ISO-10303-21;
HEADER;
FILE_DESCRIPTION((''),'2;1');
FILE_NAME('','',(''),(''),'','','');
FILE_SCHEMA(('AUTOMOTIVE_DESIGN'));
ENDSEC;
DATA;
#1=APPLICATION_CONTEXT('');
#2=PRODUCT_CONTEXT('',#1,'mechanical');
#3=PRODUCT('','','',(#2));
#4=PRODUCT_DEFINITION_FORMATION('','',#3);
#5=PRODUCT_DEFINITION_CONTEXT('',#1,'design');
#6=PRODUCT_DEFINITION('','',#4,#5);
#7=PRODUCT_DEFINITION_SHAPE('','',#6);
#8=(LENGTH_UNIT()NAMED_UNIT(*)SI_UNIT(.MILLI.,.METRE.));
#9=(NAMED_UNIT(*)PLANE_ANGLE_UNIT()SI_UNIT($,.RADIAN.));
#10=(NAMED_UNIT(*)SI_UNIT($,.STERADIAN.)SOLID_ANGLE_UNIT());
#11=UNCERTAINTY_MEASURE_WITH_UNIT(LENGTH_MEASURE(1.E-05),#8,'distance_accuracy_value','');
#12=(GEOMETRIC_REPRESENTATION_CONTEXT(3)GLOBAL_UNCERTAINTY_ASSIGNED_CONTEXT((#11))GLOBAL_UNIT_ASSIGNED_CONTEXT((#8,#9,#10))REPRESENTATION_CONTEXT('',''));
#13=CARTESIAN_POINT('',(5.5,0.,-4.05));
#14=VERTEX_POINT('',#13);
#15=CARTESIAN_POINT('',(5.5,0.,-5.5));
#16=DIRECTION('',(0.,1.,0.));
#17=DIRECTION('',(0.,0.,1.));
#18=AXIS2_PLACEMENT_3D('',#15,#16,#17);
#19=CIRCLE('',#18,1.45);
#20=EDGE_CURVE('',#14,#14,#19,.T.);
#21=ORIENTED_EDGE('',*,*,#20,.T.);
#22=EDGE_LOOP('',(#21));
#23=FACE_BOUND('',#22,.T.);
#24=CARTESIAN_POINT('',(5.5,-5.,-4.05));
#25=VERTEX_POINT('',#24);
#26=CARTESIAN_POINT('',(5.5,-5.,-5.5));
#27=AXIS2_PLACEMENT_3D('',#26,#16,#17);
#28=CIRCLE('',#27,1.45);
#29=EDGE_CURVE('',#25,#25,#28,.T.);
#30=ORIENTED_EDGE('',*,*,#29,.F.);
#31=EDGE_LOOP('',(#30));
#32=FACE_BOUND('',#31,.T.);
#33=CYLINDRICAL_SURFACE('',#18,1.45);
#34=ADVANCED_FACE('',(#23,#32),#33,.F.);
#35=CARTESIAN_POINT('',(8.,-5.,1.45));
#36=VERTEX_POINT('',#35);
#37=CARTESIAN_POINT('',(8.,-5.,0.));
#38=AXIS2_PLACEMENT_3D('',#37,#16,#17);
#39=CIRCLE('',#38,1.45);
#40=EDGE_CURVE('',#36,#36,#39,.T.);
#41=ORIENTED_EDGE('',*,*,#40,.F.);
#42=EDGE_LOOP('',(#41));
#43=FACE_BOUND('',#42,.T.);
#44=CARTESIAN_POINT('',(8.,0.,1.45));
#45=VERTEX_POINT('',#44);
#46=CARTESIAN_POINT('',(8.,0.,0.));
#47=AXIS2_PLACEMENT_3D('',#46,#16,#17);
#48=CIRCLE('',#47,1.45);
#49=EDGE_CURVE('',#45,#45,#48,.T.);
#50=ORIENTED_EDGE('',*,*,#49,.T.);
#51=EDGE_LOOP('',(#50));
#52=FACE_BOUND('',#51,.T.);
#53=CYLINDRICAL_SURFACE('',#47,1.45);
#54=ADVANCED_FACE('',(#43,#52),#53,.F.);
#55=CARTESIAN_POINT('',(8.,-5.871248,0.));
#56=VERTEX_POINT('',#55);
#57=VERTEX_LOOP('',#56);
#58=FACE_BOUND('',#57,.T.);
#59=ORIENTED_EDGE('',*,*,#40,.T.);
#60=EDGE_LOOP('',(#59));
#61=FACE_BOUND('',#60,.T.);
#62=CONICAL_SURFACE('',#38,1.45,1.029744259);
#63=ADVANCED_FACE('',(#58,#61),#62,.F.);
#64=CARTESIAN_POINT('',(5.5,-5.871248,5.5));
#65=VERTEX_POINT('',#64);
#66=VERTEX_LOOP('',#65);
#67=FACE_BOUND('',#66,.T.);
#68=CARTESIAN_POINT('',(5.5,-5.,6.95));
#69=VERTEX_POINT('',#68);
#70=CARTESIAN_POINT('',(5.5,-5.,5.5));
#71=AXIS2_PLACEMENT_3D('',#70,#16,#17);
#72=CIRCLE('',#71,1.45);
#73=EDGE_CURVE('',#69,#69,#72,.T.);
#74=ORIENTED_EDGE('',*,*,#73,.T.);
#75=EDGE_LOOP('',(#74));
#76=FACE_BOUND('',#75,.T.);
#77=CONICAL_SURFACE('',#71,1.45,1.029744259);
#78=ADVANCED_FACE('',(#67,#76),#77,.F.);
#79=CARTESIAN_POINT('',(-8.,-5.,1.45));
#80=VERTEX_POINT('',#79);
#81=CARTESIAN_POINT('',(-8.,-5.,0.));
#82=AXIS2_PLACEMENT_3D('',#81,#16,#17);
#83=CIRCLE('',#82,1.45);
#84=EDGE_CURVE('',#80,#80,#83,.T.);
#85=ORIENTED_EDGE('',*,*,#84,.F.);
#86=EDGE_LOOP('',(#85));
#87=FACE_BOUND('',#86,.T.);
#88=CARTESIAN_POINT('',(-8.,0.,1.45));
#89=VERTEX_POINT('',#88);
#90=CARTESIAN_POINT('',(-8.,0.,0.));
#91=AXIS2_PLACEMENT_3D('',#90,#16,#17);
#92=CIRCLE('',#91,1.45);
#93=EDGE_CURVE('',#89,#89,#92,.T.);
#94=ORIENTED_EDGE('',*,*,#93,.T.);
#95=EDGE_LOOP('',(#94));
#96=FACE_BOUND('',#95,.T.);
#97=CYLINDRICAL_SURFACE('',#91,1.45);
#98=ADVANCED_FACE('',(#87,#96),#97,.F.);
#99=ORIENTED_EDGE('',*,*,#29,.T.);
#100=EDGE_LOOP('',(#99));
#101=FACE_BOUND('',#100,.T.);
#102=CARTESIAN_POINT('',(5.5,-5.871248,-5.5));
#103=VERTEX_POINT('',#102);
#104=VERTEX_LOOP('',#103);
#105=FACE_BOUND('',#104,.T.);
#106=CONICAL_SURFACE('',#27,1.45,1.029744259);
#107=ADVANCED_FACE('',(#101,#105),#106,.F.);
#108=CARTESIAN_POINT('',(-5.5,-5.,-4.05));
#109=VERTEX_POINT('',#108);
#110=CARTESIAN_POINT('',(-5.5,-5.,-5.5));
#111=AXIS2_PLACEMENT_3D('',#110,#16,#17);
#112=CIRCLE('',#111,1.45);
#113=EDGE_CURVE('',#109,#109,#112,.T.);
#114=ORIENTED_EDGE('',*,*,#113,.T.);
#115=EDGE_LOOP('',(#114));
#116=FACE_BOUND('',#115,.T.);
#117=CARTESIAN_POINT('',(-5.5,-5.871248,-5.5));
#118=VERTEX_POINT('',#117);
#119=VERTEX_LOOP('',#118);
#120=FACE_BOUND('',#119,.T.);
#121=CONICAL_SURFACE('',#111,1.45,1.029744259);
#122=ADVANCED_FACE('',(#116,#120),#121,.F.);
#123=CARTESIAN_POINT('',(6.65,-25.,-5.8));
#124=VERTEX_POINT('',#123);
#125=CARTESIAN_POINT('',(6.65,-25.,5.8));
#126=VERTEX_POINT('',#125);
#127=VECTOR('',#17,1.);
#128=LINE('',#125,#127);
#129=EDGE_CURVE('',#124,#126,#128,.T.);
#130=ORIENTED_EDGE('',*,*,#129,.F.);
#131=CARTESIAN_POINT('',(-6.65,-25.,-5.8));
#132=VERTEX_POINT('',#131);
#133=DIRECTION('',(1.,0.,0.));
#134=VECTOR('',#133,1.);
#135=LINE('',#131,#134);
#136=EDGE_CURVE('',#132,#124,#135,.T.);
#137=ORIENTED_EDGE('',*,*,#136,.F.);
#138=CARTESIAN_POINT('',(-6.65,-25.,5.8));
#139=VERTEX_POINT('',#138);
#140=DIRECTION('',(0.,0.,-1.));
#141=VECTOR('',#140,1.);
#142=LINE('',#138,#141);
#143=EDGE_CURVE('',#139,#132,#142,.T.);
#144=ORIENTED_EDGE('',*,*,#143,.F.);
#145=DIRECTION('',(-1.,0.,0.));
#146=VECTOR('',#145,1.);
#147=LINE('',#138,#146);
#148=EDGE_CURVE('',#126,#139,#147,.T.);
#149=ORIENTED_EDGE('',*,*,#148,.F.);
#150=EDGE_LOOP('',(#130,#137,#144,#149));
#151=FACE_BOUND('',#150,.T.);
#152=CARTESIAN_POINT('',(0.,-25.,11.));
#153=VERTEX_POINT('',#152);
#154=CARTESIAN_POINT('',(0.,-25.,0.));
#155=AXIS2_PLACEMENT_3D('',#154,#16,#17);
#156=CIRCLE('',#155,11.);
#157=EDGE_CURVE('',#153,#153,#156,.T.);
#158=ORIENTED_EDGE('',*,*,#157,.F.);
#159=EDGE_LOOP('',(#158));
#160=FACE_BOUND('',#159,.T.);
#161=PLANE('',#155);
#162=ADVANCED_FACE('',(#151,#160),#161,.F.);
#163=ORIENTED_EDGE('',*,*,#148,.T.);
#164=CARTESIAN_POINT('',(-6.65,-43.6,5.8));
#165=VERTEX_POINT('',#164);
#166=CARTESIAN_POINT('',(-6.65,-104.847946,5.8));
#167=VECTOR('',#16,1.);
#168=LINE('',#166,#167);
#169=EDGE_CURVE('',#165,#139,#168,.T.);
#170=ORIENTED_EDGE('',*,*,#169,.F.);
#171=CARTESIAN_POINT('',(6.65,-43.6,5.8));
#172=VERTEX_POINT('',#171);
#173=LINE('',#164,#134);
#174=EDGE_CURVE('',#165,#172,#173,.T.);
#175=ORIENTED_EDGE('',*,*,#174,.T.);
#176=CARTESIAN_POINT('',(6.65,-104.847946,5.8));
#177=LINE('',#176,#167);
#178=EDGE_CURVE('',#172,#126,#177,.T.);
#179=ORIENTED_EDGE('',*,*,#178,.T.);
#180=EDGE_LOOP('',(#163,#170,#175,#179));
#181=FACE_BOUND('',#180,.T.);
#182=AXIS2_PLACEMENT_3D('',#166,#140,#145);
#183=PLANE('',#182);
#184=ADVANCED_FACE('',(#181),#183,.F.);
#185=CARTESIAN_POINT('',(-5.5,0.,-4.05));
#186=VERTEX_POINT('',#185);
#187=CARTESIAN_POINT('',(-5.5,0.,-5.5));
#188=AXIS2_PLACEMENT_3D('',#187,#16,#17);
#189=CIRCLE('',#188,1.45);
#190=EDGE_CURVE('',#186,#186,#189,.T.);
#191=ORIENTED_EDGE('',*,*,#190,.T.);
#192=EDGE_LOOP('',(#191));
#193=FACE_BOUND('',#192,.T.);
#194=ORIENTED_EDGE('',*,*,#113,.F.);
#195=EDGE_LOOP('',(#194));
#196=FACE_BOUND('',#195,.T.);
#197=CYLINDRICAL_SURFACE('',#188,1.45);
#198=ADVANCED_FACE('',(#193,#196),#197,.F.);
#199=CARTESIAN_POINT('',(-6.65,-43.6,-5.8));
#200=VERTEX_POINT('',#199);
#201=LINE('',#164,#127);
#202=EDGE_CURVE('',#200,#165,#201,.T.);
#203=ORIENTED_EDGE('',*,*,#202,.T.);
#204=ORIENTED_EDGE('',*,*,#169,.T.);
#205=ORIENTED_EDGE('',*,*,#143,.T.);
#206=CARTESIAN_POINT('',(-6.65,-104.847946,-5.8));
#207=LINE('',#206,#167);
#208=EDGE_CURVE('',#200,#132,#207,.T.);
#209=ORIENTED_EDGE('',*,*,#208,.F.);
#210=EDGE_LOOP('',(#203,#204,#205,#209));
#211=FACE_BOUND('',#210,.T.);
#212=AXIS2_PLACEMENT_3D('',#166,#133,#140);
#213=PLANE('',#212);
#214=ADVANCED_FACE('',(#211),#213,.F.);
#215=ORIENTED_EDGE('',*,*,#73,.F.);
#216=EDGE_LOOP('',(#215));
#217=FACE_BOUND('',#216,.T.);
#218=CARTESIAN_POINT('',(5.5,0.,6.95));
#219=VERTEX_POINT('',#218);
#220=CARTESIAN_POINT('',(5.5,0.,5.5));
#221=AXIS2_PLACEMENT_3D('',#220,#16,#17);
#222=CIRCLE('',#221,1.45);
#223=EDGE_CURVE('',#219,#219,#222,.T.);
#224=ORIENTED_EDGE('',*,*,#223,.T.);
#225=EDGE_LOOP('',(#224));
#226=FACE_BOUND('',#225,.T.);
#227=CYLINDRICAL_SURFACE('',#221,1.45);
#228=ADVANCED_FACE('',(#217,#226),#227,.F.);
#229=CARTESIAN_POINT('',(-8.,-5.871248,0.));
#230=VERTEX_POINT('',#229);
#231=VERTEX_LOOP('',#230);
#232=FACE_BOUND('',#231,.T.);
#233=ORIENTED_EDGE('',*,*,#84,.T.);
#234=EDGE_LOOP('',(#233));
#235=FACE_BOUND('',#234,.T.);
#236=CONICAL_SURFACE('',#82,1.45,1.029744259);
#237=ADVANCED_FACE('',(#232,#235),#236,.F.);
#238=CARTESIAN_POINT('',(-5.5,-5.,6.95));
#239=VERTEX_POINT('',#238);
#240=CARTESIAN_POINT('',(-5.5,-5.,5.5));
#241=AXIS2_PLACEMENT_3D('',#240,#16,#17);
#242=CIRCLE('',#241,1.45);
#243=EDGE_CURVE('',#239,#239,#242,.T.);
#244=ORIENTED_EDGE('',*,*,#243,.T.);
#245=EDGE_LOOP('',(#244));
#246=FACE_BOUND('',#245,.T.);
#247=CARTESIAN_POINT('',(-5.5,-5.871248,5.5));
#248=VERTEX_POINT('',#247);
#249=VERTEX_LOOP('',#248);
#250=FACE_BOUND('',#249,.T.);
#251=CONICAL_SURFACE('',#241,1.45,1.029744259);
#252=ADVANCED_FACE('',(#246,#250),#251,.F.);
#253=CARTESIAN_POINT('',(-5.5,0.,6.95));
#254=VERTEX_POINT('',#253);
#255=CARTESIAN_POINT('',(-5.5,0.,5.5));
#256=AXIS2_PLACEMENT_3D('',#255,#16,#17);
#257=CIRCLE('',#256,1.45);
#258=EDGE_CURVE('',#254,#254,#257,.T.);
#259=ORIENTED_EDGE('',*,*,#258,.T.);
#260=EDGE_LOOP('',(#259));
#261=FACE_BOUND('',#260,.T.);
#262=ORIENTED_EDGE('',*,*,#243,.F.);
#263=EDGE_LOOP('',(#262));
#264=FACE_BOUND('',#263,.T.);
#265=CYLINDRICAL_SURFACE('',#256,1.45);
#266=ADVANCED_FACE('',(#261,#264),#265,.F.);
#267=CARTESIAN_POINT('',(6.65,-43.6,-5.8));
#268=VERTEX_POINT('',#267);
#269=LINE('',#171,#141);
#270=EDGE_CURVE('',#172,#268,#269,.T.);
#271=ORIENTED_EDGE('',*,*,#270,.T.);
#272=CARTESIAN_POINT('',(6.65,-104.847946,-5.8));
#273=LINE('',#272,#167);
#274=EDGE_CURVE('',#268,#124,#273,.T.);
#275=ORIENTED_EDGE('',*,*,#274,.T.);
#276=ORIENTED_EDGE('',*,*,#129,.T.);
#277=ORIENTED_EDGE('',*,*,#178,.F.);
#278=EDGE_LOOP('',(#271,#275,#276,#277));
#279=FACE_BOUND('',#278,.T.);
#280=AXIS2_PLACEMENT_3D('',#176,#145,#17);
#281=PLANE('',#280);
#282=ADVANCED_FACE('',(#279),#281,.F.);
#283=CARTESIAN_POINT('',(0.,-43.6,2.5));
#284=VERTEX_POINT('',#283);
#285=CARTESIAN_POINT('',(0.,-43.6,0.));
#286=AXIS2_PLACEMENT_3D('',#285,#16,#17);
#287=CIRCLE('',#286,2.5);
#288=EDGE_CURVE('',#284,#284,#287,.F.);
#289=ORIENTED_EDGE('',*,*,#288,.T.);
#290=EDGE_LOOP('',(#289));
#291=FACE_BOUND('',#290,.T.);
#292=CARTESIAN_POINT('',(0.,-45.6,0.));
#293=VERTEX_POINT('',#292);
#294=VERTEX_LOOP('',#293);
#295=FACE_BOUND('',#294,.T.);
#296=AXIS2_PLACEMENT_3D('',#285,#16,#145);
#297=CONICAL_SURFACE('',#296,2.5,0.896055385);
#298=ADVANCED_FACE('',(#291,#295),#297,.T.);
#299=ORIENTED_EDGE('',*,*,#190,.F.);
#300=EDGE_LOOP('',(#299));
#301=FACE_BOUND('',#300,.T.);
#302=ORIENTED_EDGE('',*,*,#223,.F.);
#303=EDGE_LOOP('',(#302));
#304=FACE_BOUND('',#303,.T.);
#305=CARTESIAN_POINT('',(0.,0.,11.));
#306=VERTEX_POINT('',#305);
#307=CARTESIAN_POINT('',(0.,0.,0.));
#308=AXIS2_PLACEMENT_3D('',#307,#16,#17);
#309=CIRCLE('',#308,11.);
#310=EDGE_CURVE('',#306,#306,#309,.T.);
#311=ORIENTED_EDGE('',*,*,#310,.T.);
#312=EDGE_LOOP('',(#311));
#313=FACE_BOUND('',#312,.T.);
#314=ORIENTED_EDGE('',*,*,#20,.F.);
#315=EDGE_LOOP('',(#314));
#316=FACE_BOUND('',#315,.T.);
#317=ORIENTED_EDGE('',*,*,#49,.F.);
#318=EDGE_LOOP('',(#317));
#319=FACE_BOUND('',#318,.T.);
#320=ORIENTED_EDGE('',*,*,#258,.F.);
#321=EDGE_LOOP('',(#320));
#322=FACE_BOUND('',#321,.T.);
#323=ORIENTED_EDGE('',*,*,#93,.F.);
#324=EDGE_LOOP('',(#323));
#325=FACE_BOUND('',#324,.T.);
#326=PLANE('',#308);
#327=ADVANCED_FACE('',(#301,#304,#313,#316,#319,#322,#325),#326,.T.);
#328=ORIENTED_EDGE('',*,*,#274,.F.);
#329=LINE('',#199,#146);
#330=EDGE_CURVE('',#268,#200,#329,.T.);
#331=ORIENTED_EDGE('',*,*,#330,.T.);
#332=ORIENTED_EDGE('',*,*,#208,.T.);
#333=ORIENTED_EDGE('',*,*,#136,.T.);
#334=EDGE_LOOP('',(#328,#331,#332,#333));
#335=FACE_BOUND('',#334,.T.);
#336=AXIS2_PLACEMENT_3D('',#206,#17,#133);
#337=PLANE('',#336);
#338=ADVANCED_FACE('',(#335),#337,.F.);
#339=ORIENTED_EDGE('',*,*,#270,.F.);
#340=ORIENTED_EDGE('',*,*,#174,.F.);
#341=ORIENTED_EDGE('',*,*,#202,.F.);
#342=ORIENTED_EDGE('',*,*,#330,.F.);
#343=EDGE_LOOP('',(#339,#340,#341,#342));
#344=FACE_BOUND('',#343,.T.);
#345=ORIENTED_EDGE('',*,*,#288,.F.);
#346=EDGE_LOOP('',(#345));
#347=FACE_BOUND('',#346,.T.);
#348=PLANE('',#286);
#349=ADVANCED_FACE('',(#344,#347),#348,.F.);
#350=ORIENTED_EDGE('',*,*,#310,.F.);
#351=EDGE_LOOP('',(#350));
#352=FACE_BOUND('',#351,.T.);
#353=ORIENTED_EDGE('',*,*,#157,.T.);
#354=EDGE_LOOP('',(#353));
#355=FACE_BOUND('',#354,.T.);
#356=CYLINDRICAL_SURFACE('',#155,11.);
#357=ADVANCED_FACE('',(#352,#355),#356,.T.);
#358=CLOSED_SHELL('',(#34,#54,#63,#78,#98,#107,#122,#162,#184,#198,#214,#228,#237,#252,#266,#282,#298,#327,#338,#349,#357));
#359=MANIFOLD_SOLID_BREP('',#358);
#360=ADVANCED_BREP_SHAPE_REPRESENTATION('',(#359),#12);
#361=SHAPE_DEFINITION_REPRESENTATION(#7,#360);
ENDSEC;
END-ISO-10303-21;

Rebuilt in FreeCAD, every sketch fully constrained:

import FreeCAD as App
import Part
import Sketcher
from FreeCAD import Vector

doc = App.newDocument("Part")
body = doc.addObject("PartDesign::Body", "Body")

sketch1 = body.newObject("Sketcher::SketchObject", "Sketch")
sketch1.AttachmentSupport = (doc.getObject("XZ_Plane"), [""])
sketch1.MapMode = "FlatFace"
sketch1.addGeometry(Part.Circle(Vector(0, 0, 0), Vector(0, 0, 1), 11), False)
sketch1.addConstraint([
    Sketcher.Constraint("Coincident", 0, 3, -1, 1),
    Sketcher.Constraint("Diameter", 0, 22.0),
])
pad1 = body.newObject("PartDesign::Pad", "Pad")
pad1.Profile = sketch1
pad1.Length = 25

sketch2 = body.newObject("Sketcher::SketchObject", "Sketch001")
sketch2.AttachmentSupport = (doc.getObject("XZ_Plane"), [""])
sketch2.MapMode = "FlatFace"
sketch2.AttachmentOffset = App.Placement(Vector(0, 0, 25), App.Rotation())
sketch2.addGeometry([
    Part.LineSegment(Vector(-7, 6, 0), Vector(-7, -6, 0)),
    Part.LineSegment(Vector(-7, -6, 0), Vector(7, -6, 0)),
    Part.LineSegment(Vector(7, -6, 0), Vector(7, 6, 0)),
    Part.LineSegment(Vector(7, 6, 0), Vector(-7, 6, 0)),
], False)
sketch2.addConstraint([
    Sketcher.Constraint("Coincident", 0, 2, 1, 1),
    Sketcher.Constraint("Coincident", 1, 2, 2, 1),
    Sketcher.Constraint("Coincident", 2, 2, 3, 1),
    Sketcher.Constraint("Coincident", 3, 2, 0, 1),
    Sketcher.Constraint("Vertical", 0),
    Sketcher.Constraint("Horizontal", 1),
    Sketcher.Constraint("Vertical", 2),
    Sketcher.Constraint("Horizontal", 3),
    Sketcher.Constraint("Symmetric", 0, 2, 2, 2, -1, 1),
    Sketcher.Constraint("DistanceX", 1, 1, 1, 2, 13.3),
    Sketcher.Constraint("DistanceY", 0, 2, 0, 1, 11.6),
])
pad2 = body.newObject("PartDesign::Pad", "Pad001")
pad2.Profile = sketch2
pad2.Length = 18.6

sketch3 = body.newObject("Sketcher::SketchObject", "Sketch002")
sketch3.AttachmentSupport = (doc.getObject("XY_Plane"), [""])
sketch3.MapMode = "FlatFace"
sketch3.addGeometry([
    Part.LineSegment(Vector(-2.5, -43.6, 0), Vector(0, -45.6, 0)),
    Part.LineSegment(Vector(0, -45.6, 0), Vector(0, -43.6, 0)),
    Part.LineSegment(Vector(0, -43.6, 0), Vector(-2.5, -43.6, 0)),
], False)
sketch3.addConstraint([
    Sketcher.Constraint("Coincident", 0, 2, 1, 1),
    Sketcher.Constraint("Coincident", 1, 2, 2, 1),
    Sketcher.Constraint("Coincident", 2, 2, 0, 1),
    Sketcher.Constraint("Vertical", 1),
    Sketcher.Constraint("Horizontal", 2),
    Sketcher.Constraint("PointOnObject", 0, 2, -2),
    Sketcher.Constraint("DistanceY", 1, 1, 1, 2, 2.0),
    Sketcher.Constraint("DistanceX", 2, 2, 2, 1, 2.5),
    Sketcher.Constraint("DistanceY", 0, 2, -1, 1, 45.6),
])
revolution = body.newObject("PartDesign::Revolution", "Revolution")
revolution.Profile = sketch3
revolution.ReferenceAxis = (sketch3, ["V_Axis"])
revolution.Angle = 360

sketch4 = body.newObject("Sketcher::SketchObject", "Sketch003")
sketch4.AttachmentSupport = (doc.getObject("XZ_Plane"), [""])
sketch4.MapMode = "FlatFace"
sketch4.addGeometry([
    Part.Circle(Vector(-5.5, -5.5, 0), Vector(0, 0, 1), 1.4),
    Part.Circle(Vector(5.5, 5.5, 0), Vector(0, 0, 1), 1.4),
    Part.Circle(Vector(-5.5, 5.5, 0), Vector(0, 0, 1), 1.4),
    Part.Circle(Vector(5.5, -5.5, 0), Vector(0, 0, 1), 1.4),
    Part.Circle(Vector(8, 0, 0), Vector(0, 0, 1), 1.4),
    Part.Circle(Vector(-8, 0, 0), Vector(0, 0, 1), 1.4),
], False)
sketch4.addConstraint([
    Sketcher.Constraint("Equal", 0, 1),
    Sketcher.Constraint("Equal", 1, 2),
    Sketcher.Constraint("Equal", 2, 3),
    Sketcher.Constraint("Equal", 3, 4),
    Sketcher.Constraint("Equal", 4, 5),
    Sketcher.Constraint("Symmetric", 0, 3, 1, 3, -1, 1),
    Sketcher.Constraint("Symmetric", 2, 3, 3, 3, -1, 1),
    Sketcher.Constraint("Symmetric", 4, 3, 5, 3, -1, 1),
    Sketcher.Constraint("Symmetric", 1, 3, 2, 3, -2),
    Sketcher.Constraint("PointOnObject", 4, 3, -1),
    Sketcher.Constraint("Diameter", 0, 2.9),
    Sketcher.Constraint("DistanceX", -1, 1, 4, 3, 8.0),
    Sketcher.Constraint("DistanceX", 0, 3, 1, 3, 11.0),
    Sketcher.Constraint("DistanceY", 0, 3, 1, 3, 11.0),
])
doc.recompute()
hole = body.newObject("PartDesign::Hole", "Hole")
hole.Profile = sketch4
hole.ThreadType = "None"
hole.Diameter = 2.9
hole.DepthType = "Dimension"
hole.Depth = 5
hole.DrillPoint = "Angled"
hole.DrillPointAngle = 118
hole.Reversed = True

doc.recompute()
